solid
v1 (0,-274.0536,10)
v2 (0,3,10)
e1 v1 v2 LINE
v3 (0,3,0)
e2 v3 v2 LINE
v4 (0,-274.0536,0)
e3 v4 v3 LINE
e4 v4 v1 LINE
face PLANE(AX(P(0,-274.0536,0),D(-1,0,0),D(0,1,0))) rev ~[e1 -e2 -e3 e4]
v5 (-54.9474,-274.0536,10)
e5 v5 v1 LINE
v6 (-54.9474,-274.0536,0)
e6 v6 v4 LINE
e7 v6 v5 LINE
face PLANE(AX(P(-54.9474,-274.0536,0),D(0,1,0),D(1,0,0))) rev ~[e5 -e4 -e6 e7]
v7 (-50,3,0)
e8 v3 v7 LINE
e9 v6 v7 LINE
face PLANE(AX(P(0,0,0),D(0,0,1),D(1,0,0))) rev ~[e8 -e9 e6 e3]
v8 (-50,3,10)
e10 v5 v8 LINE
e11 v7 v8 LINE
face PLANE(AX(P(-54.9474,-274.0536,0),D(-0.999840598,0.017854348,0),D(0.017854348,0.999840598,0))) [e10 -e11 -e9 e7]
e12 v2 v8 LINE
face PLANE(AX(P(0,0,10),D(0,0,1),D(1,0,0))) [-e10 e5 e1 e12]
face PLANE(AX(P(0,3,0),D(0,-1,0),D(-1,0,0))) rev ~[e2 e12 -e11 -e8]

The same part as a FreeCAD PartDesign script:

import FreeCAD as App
import Part
import Sketcher

V = App.Vector
Q = App.Units.Quantity


def add_polygon(sketch, points):
    """Adds a closed chain of lines whose ends are joined by coincident constraints."""
    first, n = sketch.GeometryCount, len(points)
    for a, b in zip(points, points[1:] + points[:1]):
        sketch.addGeometry(Part.LineSegment(App.Vector(*a, 0), App.Vector(*b, 0)), False)
    for i in range(n):
        sketch.addConstraint(Sketcher.Constraint("Coincident", first + i, 2, first + (i + 1) % n, 1))

doc = App.newDocument("Part")
body = doc.addObject("PartDesign::Body", "Body")

sketch1 = doc.addObject("Sketcher::SketchObject", "Sketch")
body.addObject(sketch1)
sketch1.AttachmentSupport = (doc.XY_Plane, [""])
sketch1.MapMode = "FlatFace"
add_polygon(sketch1, [(0, -274), (0, 3), (-50, 3), (-55, -274)])
sketch1.addConstraint(Sketcher.Constraint("Vertical", 0))
sketch1.addConstraint(Sketcher.Constraint("Horizontal", 1))
sketch1.addConstraint(Sketcher.Constraint("Horizontal", 3))
sketch1.addConstraint(Sketcher.Constraint("PointOnObject", 0, 2, -2))
sketch1.addConstraint(Sketcher.Constraint("DistanceX", 1, 2, 1, 1, Q("50 mm")))
sketch1.addConstraint(Sketcher.Constraint("DistanceY", -1, 1, 0, 2, Q("3 mm")))
sketch1.addConstraint(Sketcher.Constraint("DistanceX", 3, 1, 3, 2, Q("54.9474 mm")))
sketch1.addConstraint(Sketcher.Constraint("DistanceY", 0, 1, 0, 2, Q("277.0536 mm")))
pad1 = doc.addObject("PartDesign::Pad", "Pad")
body.addObject(pad1)
pad1.Profile = sketch1
pad1.Length = 10

doc.recompute()
